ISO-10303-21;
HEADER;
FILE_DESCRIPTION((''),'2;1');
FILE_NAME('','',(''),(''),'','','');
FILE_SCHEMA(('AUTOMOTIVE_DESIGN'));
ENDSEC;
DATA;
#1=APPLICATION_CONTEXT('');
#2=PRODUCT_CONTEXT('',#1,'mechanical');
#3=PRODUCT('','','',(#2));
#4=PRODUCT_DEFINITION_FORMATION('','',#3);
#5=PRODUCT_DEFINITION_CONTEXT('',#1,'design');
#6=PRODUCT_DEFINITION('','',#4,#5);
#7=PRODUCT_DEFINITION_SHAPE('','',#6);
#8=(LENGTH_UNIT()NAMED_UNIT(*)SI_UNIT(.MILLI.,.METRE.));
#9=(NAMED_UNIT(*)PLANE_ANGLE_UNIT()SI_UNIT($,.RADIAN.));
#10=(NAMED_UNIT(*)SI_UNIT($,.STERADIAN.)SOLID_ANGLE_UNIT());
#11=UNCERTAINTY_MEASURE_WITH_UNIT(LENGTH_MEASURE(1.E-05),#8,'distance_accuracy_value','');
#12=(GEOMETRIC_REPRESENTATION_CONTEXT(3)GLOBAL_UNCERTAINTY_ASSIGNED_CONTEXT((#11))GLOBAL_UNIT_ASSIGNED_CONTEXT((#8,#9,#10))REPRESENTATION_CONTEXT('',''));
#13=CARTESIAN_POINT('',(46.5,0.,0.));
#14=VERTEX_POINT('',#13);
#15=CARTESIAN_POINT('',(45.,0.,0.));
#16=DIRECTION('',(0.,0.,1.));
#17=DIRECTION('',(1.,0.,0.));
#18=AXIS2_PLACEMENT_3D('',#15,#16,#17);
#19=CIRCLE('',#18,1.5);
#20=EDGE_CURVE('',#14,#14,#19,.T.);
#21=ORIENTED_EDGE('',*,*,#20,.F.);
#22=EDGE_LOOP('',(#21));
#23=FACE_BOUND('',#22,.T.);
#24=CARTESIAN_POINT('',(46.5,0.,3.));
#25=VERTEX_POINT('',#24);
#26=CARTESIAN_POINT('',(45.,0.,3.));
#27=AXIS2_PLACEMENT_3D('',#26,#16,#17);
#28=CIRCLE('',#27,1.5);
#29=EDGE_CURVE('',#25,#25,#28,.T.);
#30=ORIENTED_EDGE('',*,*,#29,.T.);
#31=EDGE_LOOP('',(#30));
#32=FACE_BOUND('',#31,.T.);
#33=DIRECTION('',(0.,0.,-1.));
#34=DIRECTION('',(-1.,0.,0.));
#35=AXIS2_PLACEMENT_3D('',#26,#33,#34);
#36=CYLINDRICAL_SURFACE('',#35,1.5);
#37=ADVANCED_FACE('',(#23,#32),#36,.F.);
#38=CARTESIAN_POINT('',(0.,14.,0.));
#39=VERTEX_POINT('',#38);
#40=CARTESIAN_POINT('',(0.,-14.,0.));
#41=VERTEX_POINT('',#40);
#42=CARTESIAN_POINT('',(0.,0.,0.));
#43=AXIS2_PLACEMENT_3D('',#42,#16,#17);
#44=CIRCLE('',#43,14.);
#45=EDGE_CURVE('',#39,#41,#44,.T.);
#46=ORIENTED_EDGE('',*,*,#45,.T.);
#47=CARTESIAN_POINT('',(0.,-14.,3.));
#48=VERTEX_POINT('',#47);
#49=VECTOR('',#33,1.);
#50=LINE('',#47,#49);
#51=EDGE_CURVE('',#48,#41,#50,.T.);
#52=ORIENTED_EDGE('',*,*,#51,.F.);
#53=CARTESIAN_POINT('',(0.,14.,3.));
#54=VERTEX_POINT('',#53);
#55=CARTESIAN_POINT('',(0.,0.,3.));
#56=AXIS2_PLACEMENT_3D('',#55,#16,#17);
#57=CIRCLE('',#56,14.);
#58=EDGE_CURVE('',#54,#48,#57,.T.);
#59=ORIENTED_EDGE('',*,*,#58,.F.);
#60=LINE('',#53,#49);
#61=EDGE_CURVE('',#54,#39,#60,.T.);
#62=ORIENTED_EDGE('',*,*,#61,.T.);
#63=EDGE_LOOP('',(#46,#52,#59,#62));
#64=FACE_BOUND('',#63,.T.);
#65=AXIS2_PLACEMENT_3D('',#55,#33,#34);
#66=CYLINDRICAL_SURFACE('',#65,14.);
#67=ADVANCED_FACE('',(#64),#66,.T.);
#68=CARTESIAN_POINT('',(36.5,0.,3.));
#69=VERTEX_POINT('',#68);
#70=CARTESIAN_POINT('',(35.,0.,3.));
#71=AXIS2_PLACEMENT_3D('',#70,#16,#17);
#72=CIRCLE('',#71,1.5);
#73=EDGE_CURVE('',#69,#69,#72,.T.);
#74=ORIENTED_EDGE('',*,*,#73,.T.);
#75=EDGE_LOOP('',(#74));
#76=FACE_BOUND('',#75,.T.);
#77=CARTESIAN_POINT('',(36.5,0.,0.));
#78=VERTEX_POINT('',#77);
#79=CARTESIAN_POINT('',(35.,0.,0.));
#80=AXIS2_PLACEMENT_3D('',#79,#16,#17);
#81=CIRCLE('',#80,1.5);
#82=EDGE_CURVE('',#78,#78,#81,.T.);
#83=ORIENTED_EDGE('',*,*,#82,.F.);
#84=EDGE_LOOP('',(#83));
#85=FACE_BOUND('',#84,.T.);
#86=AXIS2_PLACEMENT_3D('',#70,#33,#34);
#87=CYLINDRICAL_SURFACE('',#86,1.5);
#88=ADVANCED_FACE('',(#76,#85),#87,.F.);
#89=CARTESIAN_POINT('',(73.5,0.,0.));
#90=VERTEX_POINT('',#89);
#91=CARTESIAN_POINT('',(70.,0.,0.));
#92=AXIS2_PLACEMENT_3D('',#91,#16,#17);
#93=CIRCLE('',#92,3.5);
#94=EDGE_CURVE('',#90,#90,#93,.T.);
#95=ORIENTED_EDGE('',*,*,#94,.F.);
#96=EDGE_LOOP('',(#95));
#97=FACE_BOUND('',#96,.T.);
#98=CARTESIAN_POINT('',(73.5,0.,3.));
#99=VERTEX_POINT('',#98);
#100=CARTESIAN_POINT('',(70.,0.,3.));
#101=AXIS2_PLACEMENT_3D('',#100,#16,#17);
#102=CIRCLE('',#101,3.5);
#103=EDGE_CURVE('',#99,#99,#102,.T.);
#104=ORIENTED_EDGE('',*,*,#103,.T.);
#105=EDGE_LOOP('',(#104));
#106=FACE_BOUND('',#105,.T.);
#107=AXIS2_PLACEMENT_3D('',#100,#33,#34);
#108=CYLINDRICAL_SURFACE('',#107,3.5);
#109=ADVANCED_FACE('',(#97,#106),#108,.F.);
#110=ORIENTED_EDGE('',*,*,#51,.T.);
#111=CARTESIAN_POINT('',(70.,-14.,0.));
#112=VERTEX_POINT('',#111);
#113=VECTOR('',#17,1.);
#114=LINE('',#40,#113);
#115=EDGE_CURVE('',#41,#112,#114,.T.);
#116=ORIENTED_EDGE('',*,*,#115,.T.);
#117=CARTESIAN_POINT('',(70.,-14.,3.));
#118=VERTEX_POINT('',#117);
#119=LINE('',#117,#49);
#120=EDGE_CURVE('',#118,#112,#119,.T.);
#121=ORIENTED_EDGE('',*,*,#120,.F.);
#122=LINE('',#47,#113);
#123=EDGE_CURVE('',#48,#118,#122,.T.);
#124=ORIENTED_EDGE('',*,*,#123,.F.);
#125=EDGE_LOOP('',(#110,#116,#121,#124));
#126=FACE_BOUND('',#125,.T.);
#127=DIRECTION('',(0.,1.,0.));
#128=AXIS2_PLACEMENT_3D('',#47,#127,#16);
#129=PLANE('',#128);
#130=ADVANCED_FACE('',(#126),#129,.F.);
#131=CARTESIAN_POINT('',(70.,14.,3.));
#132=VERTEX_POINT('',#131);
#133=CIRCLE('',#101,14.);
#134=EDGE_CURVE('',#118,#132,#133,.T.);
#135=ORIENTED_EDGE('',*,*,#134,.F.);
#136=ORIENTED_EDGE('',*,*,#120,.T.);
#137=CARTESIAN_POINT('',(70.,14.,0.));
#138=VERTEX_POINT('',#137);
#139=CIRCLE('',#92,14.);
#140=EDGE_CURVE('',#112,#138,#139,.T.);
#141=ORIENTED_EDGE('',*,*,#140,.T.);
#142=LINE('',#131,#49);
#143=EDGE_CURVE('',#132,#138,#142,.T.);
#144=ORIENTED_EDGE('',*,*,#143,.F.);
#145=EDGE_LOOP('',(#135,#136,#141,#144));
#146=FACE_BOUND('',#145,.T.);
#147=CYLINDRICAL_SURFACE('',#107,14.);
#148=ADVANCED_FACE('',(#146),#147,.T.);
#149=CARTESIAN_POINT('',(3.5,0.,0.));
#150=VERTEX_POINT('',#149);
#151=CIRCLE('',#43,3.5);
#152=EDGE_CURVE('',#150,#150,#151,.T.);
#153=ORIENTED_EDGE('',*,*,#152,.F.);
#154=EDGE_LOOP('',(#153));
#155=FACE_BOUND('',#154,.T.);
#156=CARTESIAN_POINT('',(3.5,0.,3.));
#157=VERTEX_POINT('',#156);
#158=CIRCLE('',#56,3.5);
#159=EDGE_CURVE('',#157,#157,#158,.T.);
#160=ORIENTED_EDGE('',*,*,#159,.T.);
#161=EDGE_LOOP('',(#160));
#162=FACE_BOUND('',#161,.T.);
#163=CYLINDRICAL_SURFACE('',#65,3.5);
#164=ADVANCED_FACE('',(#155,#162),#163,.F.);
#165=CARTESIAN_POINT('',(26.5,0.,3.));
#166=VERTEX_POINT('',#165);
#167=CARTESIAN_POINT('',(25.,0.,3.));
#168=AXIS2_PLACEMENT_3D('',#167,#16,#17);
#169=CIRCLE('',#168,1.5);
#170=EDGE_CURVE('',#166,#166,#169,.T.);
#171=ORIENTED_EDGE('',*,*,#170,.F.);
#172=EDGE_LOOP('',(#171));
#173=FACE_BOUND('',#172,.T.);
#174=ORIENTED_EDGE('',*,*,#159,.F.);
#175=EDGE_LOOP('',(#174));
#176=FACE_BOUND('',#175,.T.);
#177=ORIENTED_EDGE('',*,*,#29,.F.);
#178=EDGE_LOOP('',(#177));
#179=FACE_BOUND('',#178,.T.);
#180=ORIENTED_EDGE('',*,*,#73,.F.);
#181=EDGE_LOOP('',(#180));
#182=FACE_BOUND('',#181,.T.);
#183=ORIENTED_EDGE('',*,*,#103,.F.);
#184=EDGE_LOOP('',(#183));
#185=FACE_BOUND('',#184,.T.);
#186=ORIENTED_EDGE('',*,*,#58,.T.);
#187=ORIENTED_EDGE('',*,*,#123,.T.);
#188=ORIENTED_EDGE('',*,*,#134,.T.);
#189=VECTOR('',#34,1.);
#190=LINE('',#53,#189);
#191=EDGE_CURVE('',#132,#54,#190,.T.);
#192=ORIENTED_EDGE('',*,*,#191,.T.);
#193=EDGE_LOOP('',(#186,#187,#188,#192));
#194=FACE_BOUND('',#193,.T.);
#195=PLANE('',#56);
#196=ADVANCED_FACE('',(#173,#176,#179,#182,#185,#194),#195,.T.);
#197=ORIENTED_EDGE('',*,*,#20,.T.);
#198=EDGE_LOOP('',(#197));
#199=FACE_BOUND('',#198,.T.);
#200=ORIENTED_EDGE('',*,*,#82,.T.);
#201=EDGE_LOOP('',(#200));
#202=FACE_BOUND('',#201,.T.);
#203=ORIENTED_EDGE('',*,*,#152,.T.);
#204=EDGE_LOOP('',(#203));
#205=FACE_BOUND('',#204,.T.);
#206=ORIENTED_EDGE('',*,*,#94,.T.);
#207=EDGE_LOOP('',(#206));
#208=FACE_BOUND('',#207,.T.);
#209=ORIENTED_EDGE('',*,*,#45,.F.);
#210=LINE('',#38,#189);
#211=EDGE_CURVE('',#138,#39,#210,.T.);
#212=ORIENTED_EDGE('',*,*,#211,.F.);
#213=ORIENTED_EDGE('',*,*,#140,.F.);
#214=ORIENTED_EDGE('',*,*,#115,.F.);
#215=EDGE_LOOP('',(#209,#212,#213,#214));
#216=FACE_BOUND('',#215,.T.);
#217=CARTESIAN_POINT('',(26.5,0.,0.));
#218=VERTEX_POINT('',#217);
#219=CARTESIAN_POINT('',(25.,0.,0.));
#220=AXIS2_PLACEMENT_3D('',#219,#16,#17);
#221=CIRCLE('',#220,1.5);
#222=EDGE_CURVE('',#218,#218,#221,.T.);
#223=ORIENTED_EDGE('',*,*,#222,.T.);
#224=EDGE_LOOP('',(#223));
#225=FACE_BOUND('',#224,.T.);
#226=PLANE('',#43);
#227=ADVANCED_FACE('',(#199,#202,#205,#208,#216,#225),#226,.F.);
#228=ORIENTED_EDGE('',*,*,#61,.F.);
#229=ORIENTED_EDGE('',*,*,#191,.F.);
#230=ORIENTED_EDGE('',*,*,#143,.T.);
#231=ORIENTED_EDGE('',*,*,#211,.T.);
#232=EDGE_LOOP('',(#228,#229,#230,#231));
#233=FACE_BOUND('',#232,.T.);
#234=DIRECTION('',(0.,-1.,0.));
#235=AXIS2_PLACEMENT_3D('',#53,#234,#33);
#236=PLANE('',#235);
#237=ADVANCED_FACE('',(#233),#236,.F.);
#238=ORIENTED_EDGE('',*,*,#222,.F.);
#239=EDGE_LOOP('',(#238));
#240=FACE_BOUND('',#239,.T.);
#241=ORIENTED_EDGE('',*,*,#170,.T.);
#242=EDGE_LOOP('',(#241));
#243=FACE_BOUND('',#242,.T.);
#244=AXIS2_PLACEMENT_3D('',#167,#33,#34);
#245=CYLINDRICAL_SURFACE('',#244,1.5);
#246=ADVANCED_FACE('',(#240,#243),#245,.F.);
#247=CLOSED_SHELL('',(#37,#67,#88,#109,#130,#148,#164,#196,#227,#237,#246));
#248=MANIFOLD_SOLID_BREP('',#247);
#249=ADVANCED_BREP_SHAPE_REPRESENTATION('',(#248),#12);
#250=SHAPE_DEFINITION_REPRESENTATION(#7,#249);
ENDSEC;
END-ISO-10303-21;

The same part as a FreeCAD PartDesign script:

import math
import FreeCAD as App
import Part
import Sketcher

V = App.Vector

doc = App.newDocument("Part")
body = doc.addObject("PartDesign::Body", "Body")

# Sketch on XY plane
sketch1 = body.newObject("Sketcher::SketchObject", "Sketch")
sketch1.AttachmentSupport = (doc.getObject("XY_Plane"), [""])
sketch1.MapMode = "FlatFace"
sketch1.addGeometry(Part.LineSegment(V(70, 14, 0), V(0, 14, 0)), False)
sketch1.addGeometry(Part.ArcOfCircle(Part.Circle(V(0, 0, 0), V(0, 0, 1), 14), math.radians(90), math.radians(270)), False)
sketch1.addGeometry(Part.LineSegment(V(0, -14, 0), V(70, -14, 0)), False)
sketch1.addGeometry(Part.ArcOfCircle(Part.Circle(V(70, 0, 0), V(0, 0, 1), 14), math.radians(-90), math.radians(90)), False)
sketch1.addGeometry(Part.Circle(V(70, 0, 0), V(0, 0, 1), 3.5), False)
sketch1.addGeometry(Part.Circle(V(45, 0, 0), V(0, 0, 1), 1.5), False)
sketch1.addGeometry(Part.Circle(V(35, 0, 0), V(0, 0, 1), 1.5), False)
sketch1.addGeometry(Part.Circle(V(25, 0, 0), V(0, 0, 1), 1.5), False)
sketch1.addGeometry(Part.Circle(V(0, 0, 0), V(0, 0, 1), 3.5), False)
sketch1.addConstraint(Sketcher.Constraint("Tangent", 0, 2, 1, 1))
sketch1.addConstraint(Sketcher.Constraint("Tangent", 1, 2, 2, 1))
sketch1.addConstraint(Sketcher.Constraint("Tangent", 2, 2, 3, 1))
sketch1.addConstraint(Sketcher.Constraint("Tangent", 3, 2, 0, 1))
sketch1.addConstraint(Sketcher.Constraint("Horizontal", 0))
sketch1.addConstraint(Sketcher.Constraint("Horizontal", 2))
sketch1.addConstraint(Sketcher.Constraint("Coincident", 1, 3, -1, 1))
sketch1.addConstraint(Sketcher.Constraint("Coincident", 8, 3, -1, 1))
sketch1.addConstraint(Sketcher.Constraint("Coincident", 4, 3, 3, 3))
sketch1.addConstraint(Sketcher.Constraint("Equal", 5, 6))
sketch1.addConstraint(Sketcher.Constraint("Equal", 6, 7))
sketch1.addConstraint(Sketcher.Constraint("Equal", 4, 8))
sketch1.addConstraint(Sketcher.Constraint("PointOnObject", 5, 3, -1))
sketch1.addConstraint(Sketcher.Constraint("PointOnObject", 6, 3, -1))
sketch1.addConstraint(Sketcher.Constraint("PointOnObject", 7, 3, -1))
sketch1.addConstraint(Sketcher.Constraint("Diameter", 4, 7.0))
sketch1.addConstraint(Sketcher.Constraint("Diameter", 5, 3.0))
sketch1.addConstraint(Sketcher.Constraint("Radius", 1, 14.0))
sketch1.addConstraint(Sketcher.Constraint("DistanceX", 0, 2, 0, 1, 70.0))
sketch1.addConstraint(Sketcher.Constraint("DistanceX", -1, 1, 5, 3, 45.0))
sketch1.addConstraint(Sketcher.Constraint("DistanceX", -1, 1, 6, 3, 35.0))
sketch1.addConstraint(Sketcher.Constraint("DistanceX", -1, 1, 7, 3, 25.0))
pad1 = body.newObject("PartDesign::Pad", "Pad")
pad1.Profile = sketch1
pad1.Length = 3

doc.recompute()
